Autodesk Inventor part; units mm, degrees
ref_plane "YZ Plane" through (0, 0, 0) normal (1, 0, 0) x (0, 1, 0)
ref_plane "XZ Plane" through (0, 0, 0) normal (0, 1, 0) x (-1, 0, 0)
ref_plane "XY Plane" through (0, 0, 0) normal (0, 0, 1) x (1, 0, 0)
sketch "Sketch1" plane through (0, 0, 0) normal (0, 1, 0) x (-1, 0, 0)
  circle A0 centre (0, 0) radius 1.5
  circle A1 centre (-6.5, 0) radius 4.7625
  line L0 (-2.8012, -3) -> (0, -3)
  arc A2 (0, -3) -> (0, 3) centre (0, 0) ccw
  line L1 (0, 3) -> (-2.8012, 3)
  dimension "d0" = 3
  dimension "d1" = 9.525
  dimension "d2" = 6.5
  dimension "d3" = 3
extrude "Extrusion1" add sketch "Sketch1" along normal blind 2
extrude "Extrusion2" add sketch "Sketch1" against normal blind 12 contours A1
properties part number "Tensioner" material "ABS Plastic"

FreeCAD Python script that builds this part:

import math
import FreeCAD as App
import Part
import Sketcher

V = App.Vector

doc = App.newDocument("Part")
params = doc.addObject("Spreadsheet::Sheet", "Params")
for row, (alias, value) in enumerate([
    ("sketch1_diameter", "3 mm"),
    ("sketch1_radius", "3 mm"),
    ("pad1_length", "2 mm"),
    ("pad2_length", "12 mm"),
], start=1):
    params.set(f"A{row}", alias)
    params.set(f"B{row}", "=" + value)
    params.setAlias(f"B{row}", alias)

body = doc.addObject("PartDesign::Body", "Body")

# Sketch on XZ plane
sketch1 = body.newObject("Sketcher::SketchObject", "Sketch")
sketch1.AttachmentSupport = (doc.getObject("XZ_Plane"), [""])
sketch1.MapMode = "FlatFace"
sketch1.addGeometry([
    Part.ArcOfCircle(Part.Circle(V(6.5, 0, 0), V(0, 0, 1), 4.8), math.radians(-141), math.radians(141)),  # 0
    Part.LineSegment(V(2.8, -3, 0), V(0, -3, 0)),  # 1
    Part.ArcOfCircle(Part.Circle(V(0, 0, 0), V(0, 0, 1), 3), math.radians(90), math.radians(270)),  # 2
    Part.LineSegment(V(0, 3, 0), V(2.8, 3, 0)),  # 3
    Part.Circle(V(0, 0, 0), V(0, 0, 1), 1.5),  # 4
], False)
sketch1.addConstraint([
    Sketcher.Constraint("Coincident", 0, 1, 1, 1),
    Sketcher.Constraint("Tangent", 1, 2, 2, 2),
    Sketcher.Constraint("Tangent", 2, 1, 3, 1),
    Sketcher.Constraint("Coincident", 3, 2, 0, 2),
    Sketcher.Constraint("Horizontal", 1),
    Sketcher.Constraint("Horizontal", 3),
    Sketcher.Constraint("Coincident", 2, 3, -1, 1),
    Sketcher.Constraint("Coincident", 4, 3, -1, 1),
    Sketcher.Constraint("PointOnObject", 0, 3, -1),
    Sketcher.Constraint("Diameter", 4, 3.0),
    Sketcher.Constraint("Radius", 2, 3.0),
    Sketcher.Constraint("DistanceX", -1, 1, 0, 3, 6.5),
    Sketcher.Constraint("Radius", 0, 4.7625),
])
sketch1.setExpression("Constraints[9]", "Params.sketch1_diameter")
sketch1.setExpression("Constraints[10]", "Params.sketch1_radius")
pad1 = body.newObject("PartDesign::Pad", "Pad")
pad1.Profile = sketch1
pad1.setExpression("Length", "Params.pad1_length")
pad1.Reversed = True

# Sketch on XZ plane
sketch2 = body.newObject("Sketcher::SketchObject", "Sketch001")
sketch2.AttachmentSupport = (doc.getObject("XZ_Plane"), [""])
sketch2.MapMode = "FlatFace"
sketch2.addGeometry(Part.Circle(V(6.5, 0, 0), V(0, 0, 1), 4.8), False)
sketch2.addConstraint([
    Sketcher.Constraint("PointOnObject", 0, 3, -1),
    Sketcher.Constraint("Diameter", 0, 9.525),
    Sketcher.Constraint("DistanceX", -1, 1, 0, 3, 6.5),
])
pad2 = body.newObject("PartDesign::Pad", "Pad001")
pad2.Profile = sketch2
pad2.setExpression("Length", "Params.pad2_length")

doc.recompute()
